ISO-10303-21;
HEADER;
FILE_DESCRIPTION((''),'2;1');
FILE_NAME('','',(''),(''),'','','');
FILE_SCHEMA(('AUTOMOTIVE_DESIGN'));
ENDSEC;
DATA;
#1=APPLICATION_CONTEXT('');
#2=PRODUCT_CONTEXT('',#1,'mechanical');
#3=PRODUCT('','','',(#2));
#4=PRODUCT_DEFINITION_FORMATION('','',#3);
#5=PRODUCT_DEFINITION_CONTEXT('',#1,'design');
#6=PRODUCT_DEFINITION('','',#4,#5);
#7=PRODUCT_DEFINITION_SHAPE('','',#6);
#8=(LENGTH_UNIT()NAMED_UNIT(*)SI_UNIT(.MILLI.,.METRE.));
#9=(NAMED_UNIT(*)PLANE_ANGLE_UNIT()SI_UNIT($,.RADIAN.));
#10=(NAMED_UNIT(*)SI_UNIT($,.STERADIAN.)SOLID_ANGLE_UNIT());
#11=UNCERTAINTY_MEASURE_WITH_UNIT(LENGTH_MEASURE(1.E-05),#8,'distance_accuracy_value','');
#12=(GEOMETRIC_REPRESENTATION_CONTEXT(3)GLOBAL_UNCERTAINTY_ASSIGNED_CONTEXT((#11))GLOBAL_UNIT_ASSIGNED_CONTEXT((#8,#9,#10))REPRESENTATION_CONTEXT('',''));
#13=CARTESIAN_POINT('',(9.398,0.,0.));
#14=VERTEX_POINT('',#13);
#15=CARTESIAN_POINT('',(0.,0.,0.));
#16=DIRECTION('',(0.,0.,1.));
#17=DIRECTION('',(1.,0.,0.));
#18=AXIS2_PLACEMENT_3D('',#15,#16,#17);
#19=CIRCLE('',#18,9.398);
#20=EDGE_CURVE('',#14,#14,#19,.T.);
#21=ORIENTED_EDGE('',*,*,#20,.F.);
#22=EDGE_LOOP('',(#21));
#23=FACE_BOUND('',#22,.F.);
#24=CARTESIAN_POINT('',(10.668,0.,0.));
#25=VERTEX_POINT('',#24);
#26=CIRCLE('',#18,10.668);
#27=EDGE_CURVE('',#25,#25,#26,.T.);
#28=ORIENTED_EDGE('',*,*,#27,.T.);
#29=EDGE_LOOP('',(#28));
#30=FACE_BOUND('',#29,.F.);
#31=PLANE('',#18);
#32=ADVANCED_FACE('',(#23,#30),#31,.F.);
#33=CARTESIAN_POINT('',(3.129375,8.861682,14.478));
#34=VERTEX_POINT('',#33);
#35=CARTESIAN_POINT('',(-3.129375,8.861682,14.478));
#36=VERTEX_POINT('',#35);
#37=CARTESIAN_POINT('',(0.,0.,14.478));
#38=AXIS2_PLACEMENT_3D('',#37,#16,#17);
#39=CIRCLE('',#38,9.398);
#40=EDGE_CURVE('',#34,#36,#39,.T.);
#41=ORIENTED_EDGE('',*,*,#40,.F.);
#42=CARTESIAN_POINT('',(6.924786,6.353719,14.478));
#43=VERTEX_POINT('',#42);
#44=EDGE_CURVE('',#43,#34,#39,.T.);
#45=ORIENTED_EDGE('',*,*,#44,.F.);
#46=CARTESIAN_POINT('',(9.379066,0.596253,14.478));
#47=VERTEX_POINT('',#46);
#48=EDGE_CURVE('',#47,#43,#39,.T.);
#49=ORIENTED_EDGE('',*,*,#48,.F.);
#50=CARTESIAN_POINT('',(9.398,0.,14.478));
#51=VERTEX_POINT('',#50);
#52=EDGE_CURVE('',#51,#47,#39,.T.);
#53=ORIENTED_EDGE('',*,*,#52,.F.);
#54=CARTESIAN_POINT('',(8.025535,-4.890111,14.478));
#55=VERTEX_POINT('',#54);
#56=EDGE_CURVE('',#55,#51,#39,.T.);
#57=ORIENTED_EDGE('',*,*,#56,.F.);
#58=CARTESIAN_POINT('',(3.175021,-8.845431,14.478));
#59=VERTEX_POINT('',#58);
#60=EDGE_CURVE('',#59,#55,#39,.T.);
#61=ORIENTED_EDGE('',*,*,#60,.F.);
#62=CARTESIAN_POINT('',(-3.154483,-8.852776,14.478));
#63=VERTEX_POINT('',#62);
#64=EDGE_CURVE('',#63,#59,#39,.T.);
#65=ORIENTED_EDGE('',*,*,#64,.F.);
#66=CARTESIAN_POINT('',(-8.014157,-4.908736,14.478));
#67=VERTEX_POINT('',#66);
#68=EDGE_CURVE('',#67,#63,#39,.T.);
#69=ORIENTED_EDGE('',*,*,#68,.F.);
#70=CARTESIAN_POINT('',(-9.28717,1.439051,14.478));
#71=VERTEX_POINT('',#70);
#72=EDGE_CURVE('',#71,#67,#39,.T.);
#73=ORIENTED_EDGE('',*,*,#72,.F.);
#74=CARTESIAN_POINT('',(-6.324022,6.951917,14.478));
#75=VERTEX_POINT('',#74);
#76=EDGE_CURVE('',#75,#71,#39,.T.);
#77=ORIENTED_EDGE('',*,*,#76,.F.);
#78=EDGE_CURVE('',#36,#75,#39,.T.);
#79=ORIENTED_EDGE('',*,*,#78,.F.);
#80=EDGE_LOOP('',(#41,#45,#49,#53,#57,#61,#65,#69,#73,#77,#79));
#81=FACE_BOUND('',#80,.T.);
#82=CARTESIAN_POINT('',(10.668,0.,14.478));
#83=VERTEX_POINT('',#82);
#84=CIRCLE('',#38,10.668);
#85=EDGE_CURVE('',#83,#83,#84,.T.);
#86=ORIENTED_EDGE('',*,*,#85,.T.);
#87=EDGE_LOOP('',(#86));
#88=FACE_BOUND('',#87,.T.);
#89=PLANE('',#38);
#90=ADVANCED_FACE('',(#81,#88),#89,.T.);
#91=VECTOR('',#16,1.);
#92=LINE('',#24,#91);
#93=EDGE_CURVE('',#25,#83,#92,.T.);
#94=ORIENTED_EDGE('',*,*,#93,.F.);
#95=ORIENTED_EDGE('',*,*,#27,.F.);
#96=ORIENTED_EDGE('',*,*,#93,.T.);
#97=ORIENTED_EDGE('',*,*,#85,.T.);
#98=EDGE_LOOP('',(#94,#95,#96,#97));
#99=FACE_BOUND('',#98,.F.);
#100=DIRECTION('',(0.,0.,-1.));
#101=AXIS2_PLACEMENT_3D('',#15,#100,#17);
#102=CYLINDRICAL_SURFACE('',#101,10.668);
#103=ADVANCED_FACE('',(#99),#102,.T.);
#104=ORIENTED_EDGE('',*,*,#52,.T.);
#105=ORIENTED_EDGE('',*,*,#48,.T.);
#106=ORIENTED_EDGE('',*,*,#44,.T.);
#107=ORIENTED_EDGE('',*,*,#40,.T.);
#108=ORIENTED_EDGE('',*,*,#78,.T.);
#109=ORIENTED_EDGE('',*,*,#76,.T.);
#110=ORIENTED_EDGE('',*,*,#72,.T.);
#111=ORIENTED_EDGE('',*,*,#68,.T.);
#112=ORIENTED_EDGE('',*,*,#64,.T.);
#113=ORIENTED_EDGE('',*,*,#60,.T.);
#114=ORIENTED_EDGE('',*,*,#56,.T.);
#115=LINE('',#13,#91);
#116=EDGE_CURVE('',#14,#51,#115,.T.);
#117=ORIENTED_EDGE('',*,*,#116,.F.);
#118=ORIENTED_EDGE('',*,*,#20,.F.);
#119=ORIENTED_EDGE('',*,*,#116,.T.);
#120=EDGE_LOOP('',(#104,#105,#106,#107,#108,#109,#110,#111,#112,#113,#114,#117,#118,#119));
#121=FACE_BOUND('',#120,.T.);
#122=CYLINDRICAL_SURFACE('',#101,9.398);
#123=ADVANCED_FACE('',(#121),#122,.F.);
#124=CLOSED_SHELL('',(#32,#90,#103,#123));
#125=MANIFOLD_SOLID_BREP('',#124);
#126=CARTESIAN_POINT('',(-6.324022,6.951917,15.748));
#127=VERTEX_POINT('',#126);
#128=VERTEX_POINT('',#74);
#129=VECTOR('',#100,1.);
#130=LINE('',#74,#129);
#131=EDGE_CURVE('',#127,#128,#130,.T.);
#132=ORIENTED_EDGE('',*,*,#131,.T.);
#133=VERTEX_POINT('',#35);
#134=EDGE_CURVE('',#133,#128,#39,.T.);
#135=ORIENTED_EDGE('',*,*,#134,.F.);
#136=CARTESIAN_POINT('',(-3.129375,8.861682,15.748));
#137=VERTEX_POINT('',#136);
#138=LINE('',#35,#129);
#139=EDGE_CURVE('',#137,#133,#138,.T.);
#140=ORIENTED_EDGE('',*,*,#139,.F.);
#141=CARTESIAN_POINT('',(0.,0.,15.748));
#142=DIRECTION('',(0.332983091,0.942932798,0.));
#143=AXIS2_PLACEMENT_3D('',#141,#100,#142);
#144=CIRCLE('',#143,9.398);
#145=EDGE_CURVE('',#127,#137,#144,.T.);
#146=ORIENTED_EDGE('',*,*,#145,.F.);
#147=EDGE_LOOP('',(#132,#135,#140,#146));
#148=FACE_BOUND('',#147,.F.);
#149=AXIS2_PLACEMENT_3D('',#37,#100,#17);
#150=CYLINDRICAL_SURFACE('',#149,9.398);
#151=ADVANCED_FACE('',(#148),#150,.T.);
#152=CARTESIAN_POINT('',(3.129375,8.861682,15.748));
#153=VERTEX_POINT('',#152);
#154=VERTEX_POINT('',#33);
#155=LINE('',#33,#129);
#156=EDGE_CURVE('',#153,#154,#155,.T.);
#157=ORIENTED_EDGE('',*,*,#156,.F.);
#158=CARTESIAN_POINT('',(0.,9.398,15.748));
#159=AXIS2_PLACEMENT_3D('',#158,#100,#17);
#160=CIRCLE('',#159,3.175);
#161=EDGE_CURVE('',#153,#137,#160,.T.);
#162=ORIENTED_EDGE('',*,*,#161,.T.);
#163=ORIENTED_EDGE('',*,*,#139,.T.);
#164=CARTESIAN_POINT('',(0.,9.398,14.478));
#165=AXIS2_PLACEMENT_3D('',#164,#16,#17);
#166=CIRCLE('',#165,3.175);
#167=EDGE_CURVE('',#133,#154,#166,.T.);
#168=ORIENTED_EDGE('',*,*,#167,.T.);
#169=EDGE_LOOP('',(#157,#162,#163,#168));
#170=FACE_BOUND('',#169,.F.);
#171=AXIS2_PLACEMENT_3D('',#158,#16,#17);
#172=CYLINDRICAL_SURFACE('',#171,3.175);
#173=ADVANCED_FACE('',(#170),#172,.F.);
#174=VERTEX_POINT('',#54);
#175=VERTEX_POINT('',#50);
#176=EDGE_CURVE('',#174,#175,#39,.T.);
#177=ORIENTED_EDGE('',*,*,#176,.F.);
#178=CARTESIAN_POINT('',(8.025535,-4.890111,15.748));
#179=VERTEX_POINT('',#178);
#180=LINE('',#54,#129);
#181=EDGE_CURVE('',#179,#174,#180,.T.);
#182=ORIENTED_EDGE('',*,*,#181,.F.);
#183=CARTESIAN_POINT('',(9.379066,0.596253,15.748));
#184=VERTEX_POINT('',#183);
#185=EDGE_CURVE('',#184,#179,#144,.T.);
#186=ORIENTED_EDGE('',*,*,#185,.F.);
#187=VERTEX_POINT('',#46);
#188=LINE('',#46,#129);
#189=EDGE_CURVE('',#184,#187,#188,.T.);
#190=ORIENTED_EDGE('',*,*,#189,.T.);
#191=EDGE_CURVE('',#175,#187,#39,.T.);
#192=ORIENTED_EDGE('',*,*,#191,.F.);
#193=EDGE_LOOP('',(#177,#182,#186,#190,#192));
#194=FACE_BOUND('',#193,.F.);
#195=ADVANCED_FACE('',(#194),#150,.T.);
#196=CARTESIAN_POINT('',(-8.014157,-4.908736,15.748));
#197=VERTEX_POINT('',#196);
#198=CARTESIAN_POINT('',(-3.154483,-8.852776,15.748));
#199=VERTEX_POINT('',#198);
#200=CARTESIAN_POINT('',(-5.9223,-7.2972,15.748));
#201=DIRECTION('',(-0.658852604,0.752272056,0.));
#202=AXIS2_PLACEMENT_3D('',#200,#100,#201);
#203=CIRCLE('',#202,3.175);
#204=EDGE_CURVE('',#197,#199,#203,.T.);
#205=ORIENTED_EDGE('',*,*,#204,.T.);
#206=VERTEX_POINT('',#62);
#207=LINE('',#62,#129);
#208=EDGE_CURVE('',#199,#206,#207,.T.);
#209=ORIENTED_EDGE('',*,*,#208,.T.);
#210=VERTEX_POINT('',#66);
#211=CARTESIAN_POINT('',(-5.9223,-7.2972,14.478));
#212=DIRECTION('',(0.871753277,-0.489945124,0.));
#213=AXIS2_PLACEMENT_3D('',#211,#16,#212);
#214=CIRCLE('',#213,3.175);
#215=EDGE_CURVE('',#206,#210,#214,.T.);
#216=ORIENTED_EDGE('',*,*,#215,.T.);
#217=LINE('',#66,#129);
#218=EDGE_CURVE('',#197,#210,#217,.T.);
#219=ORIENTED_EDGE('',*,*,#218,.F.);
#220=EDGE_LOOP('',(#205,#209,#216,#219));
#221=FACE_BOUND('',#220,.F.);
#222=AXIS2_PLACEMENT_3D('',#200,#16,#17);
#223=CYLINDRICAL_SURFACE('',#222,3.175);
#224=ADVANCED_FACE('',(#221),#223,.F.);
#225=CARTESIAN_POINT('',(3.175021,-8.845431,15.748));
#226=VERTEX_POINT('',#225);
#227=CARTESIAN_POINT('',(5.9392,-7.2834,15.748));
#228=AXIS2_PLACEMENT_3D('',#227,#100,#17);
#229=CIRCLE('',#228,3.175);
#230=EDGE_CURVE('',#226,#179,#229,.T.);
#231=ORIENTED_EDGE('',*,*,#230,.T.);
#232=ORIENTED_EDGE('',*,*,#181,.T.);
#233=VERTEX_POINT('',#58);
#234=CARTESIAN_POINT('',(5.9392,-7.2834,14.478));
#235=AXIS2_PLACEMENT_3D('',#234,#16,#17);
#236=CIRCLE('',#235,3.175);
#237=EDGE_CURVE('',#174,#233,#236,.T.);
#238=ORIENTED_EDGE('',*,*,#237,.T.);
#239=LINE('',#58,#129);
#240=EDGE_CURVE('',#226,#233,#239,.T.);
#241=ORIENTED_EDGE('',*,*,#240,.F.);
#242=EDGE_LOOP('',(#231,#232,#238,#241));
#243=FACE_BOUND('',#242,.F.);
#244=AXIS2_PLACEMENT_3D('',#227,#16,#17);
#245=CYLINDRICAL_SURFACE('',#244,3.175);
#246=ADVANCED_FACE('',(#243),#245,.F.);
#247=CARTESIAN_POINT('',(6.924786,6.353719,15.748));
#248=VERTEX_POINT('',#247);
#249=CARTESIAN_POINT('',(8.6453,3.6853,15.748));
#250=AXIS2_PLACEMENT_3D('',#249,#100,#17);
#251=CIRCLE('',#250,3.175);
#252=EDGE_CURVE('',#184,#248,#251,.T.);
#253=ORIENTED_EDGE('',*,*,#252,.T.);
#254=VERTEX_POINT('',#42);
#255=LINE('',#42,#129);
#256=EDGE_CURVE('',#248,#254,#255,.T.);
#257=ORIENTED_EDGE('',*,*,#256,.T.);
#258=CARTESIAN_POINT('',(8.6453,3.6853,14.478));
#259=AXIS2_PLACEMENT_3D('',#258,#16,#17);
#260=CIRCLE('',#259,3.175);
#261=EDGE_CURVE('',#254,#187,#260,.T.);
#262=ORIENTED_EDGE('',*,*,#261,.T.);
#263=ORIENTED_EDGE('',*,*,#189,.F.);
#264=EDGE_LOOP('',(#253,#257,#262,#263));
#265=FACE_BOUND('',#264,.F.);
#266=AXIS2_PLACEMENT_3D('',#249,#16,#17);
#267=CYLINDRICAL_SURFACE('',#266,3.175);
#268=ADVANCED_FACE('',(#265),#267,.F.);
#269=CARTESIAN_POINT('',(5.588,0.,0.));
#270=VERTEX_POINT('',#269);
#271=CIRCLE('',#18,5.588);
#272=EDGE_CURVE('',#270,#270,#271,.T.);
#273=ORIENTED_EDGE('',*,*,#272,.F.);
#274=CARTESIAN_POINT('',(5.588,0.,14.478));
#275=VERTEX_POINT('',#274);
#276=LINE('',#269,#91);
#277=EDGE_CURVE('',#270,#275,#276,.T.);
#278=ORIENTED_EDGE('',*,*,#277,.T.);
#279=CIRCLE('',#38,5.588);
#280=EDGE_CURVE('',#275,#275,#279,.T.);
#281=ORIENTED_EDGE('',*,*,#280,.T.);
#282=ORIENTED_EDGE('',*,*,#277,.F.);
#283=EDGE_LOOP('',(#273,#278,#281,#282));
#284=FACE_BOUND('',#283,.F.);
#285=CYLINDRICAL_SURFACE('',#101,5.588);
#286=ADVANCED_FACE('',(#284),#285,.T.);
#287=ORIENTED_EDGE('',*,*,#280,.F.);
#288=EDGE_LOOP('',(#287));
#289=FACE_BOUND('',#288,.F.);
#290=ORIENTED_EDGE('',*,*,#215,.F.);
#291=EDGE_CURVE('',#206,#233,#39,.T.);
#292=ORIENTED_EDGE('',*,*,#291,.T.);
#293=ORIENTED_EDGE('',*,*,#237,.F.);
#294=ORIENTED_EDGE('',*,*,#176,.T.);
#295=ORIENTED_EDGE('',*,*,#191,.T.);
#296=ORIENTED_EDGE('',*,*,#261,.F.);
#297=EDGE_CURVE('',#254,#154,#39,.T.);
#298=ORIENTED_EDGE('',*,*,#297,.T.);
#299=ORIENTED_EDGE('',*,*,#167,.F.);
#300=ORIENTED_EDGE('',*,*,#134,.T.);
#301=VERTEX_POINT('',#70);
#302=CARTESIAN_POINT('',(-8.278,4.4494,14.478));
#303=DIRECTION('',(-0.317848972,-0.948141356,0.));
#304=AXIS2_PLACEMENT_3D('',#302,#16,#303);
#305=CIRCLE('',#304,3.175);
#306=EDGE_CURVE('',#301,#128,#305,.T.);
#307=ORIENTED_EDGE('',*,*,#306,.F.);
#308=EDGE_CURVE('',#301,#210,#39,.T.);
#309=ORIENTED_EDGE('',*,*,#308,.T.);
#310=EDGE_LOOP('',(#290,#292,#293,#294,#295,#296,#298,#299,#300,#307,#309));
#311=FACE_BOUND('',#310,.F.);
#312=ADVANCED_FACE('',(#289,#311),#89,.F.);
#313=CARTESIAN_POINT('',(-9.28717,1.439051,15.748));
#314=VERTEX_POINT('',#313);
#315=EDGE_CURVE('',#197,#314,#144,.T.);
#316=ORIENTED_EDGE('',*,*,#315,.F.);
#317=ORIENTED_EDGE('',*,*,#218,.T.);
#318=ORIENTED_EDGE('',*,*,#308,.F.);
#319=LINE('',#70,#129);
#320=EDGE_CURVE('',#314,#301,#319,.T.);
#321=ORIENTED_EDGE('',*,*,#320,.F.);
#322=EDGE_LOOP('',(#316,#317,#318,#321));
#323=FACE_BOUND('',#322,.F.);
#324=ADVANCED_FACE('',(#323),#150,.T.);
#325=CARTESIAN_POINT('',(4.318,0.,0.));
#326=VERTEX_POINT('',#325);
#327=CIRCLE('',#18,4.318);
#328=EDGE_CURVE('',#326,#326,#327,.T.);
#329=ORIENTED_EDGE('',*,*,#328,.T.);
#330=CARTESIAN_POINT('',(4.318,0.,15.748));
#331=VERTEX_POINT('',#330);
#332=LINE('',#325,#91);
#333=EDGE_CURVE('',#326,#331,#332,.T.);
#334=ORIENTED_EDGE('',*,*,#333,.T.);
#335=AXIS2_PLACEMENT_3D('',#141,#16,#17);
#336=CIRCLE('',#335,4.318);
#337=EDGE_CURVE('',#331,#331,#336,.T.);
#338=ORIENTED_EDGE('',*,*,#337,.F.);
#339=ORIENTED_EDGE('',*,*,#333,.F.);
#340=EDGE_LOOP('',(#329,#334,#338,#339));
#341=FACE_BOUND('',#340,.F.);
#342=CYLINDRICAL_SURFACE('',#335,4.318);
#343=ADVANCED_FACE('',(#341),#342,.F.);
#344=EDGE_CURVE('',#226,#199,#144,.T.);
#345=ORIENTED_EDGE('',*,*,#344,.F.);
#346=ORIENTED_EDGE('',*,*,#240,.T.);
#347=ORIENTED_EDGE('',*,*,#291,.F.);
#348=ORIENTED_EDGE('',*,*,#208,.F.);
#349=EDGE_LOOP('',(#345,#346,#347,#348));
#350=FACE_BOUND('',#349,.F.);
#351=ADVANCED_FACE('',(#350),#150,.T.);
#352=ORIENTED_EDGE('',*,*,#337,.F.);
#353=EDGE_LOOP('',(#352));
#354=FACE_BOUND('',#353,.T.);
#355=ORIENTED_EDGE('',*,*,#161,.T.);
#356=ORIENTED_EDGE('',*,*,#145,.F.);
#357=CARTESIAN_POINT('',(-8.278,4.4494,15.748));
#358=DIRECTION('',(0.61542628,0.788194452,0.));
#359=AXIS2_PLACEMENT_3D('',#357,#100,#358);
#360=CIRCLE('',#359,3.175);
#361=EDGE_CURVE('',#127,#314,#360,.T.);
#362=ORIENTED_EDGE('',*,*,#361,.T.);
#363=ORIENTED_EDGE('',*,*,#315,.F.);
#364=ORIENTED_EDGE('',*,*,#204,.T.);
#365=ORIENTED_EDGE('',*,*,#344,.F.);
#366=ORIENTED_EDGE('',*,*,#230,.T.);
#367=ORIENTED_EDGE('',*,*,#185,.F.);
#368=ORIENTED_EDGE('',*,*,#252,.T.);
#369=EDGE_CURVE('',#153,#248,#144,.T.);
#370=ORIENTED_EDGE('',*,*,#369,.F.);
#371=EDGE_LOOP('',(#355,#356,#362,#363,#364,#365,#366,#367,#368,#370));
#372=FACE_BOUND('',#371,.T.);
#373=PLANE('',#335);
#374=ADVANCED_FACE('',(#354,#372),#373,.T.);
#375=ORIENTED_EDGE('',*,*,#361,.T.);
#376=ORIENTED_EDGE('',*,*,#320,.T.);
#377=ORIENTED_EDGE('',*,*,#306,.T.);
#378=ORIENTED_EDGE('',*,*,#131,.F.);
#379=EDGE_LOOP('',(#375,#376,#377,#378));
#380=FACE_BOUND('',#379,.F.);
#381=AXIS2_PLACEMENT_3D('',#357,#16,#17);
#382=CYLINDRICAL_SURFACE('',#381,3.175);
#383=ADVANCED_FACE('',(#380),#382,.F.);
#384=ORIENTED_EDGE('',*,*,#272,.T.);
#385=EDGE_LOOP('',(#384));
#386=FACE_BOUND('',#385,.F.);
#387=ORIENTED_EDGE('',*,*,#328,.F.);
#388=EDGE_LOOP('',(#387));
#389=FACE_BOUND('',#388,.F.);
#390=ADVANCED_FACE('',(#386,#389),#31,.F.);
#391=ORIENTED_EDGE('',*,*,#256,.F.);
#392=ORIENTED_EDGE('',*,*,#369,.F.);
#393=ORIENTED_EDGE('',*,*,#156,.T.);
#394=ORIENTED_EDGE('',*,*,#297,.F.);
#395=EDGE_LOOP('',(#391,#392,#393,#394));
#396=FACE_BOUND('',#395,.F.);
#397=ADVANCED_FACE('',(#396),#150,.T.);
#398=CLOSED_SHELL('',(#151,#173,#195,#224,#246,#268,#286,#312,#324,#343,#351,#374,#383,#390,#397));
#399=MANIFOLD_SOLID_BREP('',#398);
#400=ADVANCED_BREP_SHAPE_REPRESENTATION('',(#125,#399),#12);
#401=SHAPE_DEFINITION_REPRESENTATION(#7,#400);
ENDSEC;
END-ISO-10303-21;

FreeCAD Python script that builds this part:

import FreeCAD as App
import Part
import Sketcher
from FreeCAD import Vector
Q = App.Units.Quantity

doc = App.newDocument("Part")
body = doc.addObject("PartDesign::Body", "Body")
body.AllowCompound = True

# Sketch on XY plane
sketch1 = doc.addObject("Sketcher::SketchObject", "Sketch")
body.addObject(sketch1)
sketch1.AttachmentSupport = (doc.XY_Plane, [""])
sketch1.MapMode = "FlatFace"
sketch1.addGeometry([
    Part.Circle(Vector(0, 0, 0), Vector(0, 0, 1), 10.668),
    Part.Circle(Vector(0, 0, 0), Vector(0, 0, 1), 9.398),
    Part.Circle(Vector(0, 0, 0), Vector(0, 0, 1), 5.588),
    Part.Circle(Vector(0, 0, 0), Vector(0, 0, 1), 4.318),
], False)
sketch1.addConstraint([
    Sketcher.Constraint("Coincident", 0, 3, -1, 1),
    Sketcher.Constraint("Coincident", 1, 3, -1, 1),
    Sketcher.Constraint("Coincident", 2, 3, -1, 1),
    Sketcher.Constraint("Coincident", 3, 3, -1, 1),
    Sketcher.Constraint("Diameter", 0, Q("0.84 in")),
    Sketcher.Constraint("Diameter", 2, Q("0.44 in")),
    Sketcher.Constraint("Diameter", 1, Q("0.74 in")),
    Sketcher.Constraint("Diameter", 3, Q("0.34 in")),
])
pad1 = doc.addObject("PartDesign::Pad", "Pad")
body.addObject(pad1)
pad1.Profile = sketch1
pad1.Length = Q("0.57 in")

# Sketch on XY plane
sketch2 = doc.addObject("Sketcher::SketchObject", "Sketch001")
body.addObject(sketch2)
sketch2.AttachmentSupport = (doc.XY_Plane, [""])
sketch2.MapMode = "FlatFace"
sketch2.AttachmentOffset = App.Placement(Vector(0, 0, 0.57 * 25.4), App.Rotation())
sketch2.addGeometry(Part.Circle(Vector(0, 0, 0), Vector(0, 0, 1), 9.398), False)
sketch2.addConstraint([
    Sketcher.Constraint("Coincident", 0, 3, -1, 1),
    Sketcher.Constraint("Diameter", 0, Q("0.74 in")),
])
pad2 = doc.addObject("PartDesign::Pad", "Pad001")
body.addObject(pad2)
pad2.Profile = sketch2
pad2.Length = Q("0.05 in")

# Sketch on XY plane
sketch3 = doc.addObject("Sketcher::SketchObject", "Sketch002")
body.addObject(sketch3)
sketch3.AttachmentSupport = (doc.XY_Plane, [""])
sketch3.MapMode = "FlatFace"
sketch3.AttachmentOffset = App.Placement(Vector(0, 0, 0.62 * 25.4), App.Rotation())
sketch3.addGeometry(Part.Circle(Vector(0, 0, 0), Vector(0, 0, 1), 4.318), False)
sketch3.addConstraint([
    Sketcher.Constraint("Coincident", 0, 3, -1, 1),
    Sketcher.Constraint("Diameter", 0, Q("0.34 in")),
])
pocket1 = doc.addObject("PartDesign::Pocket", "Pocket")
body.addObject(pocket1)
pocket1.Profile = sketch3
pocket1.Length = Q("0.05 in")

# Sketch on XY plane
sketch4 = doc.addObject("Sketcher::SketchObject", "Sketch003")
body.addObject(sketch4)
sketch4.AttachmentSupport = (doc.XY_Plane, [""])
sketch4.MapMode = "FlatFace"
sketch4.AttachmentOffset = App.Placement(Vector(0, 0, 0.62 * 25.4), App.Rotation())
sketch4.addGeometry(Part.Circle(Vector(0, 9.398, 0), Vector(0, 0, 1), 3.175), False)
sketch4.addConstraint([
    Sketcher.Constraint("PointOnObject", 0, 3, -2),
    Sketcher.Constraint("Diameter", 0, Q("0.25 in")),
    Sketcher.Constraint("DistanceY", -1, 1, 0, 3, Q("0.37 in")),
])
pocket2 = doc.addObject("PartDesign::Pocket", "Pocket001")
body.addObject(pocket2)
pocket2.Profile = sketch4
pocket2.Length = Q("0.05 in")

# Sketch on XY plane
sketch5 = doc.addObject("Sketcher::SketchObject", "Sketch004")
body.addObject(sketch5)
sketch5.AttachmentSupport = (doc.XY_Plane, [""])
sketch5.MapMode = "FlatFace"
sketch5.AttachmentOffset = App.Placement(Vector(0, 0, 0.62 * 25.4), App.Rotation())
sketch5.addGeometry(Part.Circle(Vector(5.9392, -7.2834, 0), Vector(0, 0, 1), 3.175), False)
sketch5.addConstraint([
    Sketcher.Constraint("Diameter", 0, Q("0.25 in")),
    Sketcher.Constraint("DistanceX", -1, 1, 0, 3, Q("5.9392 mm")),
    Sketcher.Constraint("DistanceY", 0, 3, -1, 1, Q("7.2834 mm")),
])
pocket3 = doc.addObject("PartDesign::Pocket", "Pocket002")
body.addObject(pocket3)
pocket3.Profile = sketch5
pocket3.Length = Q("0.05 in")

# Sketch on XY plane
sketch6 = doc.addObject("Sketcher::SketchObject", "Sketch005")
body.addObject(sketch6)
sketch6.AttachmentSupport = (doc.XY_Plane, [""])
sketch6.MapMode = "FlatFace"
sketch6.AttachmentOffset = App.Placement(Vector(0, 0, 0.62 * 25.4), App.Rotation())
sketch6.addGeometry(Part.Circle(Vector(-5.9223, -7.2972, 0), Vector(0, 0, 1), 3.175), False)
sketch6.addConstraint([
    Sketcher.Constraint("Diameter", 0, Q("0.25 in")),
    Sketcher.Constraint("DistanceY", 0, 3, -1, 1, Q("0.2873 in")),
    Sketcher.Constraint("DistanceX", 0, 3, -1, 1, Q("5.9223 mm")),
])
pocket4 = doc.addObject("PartDesign::Pocket", "Pocket003")
body.addObject(pocket4)
pocket4.Profile = sketch6
pocket4.Length = Q("0.05 in")

# Sketch on XY plane
sketch7 = doc.addObject("Sketcher::SketchObject", "Sketch006")
body.addObject(sketch7)
sketch7.AttachmentSupport = (doc.XY_Plane, [""])
sketch7.MapMode = "FlatFace"
sketch7.AttachmentOffset = App.Placement(Vector(0, 0, 0.62 * 25.4), App.Rotation())
sketch7.addGeometry(Part.Circle(Vector(-8.278, 4.4494, 0), Vector(0, 0, 1), 3.175), False)
sketch7.addConstraint([
    Sketcher.Constraint("Diameter", 0, Q("0.25 in")),
    Sketcher.Constraint("DistanceX", 0, 3, -1, 1, Q("0.3259 in")),
    Sketcher.Constraint("DistanceY", -1, 1, 0, 3, Q("4.4494 mm")),
])
pocket5 = doc.addObject("PartDesign::Pocket", "Pocket004")
body.addObject(pocket5)
pocket5.Profile = sketch7
pocket5.Length = Q("0.05 in")

# Sketch on XY plane
sketch8 = doc.addObject("Sketcher::SketchObject", "Sketch007")
body.addObject(sketch8)
sketch8.AttachmentSupport = (doc.XY_Plane, [""])
sketch8.MapMode = "FlatFace"
sketch8.AttachmentOffset = App.Placement(Vector(0, 0, 0.62 * 25.4), App.Rotation())
sketch8.addGeometry(Part.Circle(Vector(8.6453, 3.6853, 0), Vector(0, 0, 1), 3.175), False)
sketch8.addConstraint([
    Sketcher.Constraint("Diameter", 0, Q("0.25 in")),
    Sketcher.Constraint("DistanceY", -1, 1, 0, 3, Q("0.1451 in")),
    Sketcher.Constraint("DistanceX", -1, 1, 0, 3, Q("8.6453 mm")),
])
pocket6 = doc.addObject("PartDesign::Pocket", "Pocket005")
body.addObject(pocket6)
pocket6.Profile = sketch8
pocket6.Length = Q("0.05 in")

doc.recompute()
